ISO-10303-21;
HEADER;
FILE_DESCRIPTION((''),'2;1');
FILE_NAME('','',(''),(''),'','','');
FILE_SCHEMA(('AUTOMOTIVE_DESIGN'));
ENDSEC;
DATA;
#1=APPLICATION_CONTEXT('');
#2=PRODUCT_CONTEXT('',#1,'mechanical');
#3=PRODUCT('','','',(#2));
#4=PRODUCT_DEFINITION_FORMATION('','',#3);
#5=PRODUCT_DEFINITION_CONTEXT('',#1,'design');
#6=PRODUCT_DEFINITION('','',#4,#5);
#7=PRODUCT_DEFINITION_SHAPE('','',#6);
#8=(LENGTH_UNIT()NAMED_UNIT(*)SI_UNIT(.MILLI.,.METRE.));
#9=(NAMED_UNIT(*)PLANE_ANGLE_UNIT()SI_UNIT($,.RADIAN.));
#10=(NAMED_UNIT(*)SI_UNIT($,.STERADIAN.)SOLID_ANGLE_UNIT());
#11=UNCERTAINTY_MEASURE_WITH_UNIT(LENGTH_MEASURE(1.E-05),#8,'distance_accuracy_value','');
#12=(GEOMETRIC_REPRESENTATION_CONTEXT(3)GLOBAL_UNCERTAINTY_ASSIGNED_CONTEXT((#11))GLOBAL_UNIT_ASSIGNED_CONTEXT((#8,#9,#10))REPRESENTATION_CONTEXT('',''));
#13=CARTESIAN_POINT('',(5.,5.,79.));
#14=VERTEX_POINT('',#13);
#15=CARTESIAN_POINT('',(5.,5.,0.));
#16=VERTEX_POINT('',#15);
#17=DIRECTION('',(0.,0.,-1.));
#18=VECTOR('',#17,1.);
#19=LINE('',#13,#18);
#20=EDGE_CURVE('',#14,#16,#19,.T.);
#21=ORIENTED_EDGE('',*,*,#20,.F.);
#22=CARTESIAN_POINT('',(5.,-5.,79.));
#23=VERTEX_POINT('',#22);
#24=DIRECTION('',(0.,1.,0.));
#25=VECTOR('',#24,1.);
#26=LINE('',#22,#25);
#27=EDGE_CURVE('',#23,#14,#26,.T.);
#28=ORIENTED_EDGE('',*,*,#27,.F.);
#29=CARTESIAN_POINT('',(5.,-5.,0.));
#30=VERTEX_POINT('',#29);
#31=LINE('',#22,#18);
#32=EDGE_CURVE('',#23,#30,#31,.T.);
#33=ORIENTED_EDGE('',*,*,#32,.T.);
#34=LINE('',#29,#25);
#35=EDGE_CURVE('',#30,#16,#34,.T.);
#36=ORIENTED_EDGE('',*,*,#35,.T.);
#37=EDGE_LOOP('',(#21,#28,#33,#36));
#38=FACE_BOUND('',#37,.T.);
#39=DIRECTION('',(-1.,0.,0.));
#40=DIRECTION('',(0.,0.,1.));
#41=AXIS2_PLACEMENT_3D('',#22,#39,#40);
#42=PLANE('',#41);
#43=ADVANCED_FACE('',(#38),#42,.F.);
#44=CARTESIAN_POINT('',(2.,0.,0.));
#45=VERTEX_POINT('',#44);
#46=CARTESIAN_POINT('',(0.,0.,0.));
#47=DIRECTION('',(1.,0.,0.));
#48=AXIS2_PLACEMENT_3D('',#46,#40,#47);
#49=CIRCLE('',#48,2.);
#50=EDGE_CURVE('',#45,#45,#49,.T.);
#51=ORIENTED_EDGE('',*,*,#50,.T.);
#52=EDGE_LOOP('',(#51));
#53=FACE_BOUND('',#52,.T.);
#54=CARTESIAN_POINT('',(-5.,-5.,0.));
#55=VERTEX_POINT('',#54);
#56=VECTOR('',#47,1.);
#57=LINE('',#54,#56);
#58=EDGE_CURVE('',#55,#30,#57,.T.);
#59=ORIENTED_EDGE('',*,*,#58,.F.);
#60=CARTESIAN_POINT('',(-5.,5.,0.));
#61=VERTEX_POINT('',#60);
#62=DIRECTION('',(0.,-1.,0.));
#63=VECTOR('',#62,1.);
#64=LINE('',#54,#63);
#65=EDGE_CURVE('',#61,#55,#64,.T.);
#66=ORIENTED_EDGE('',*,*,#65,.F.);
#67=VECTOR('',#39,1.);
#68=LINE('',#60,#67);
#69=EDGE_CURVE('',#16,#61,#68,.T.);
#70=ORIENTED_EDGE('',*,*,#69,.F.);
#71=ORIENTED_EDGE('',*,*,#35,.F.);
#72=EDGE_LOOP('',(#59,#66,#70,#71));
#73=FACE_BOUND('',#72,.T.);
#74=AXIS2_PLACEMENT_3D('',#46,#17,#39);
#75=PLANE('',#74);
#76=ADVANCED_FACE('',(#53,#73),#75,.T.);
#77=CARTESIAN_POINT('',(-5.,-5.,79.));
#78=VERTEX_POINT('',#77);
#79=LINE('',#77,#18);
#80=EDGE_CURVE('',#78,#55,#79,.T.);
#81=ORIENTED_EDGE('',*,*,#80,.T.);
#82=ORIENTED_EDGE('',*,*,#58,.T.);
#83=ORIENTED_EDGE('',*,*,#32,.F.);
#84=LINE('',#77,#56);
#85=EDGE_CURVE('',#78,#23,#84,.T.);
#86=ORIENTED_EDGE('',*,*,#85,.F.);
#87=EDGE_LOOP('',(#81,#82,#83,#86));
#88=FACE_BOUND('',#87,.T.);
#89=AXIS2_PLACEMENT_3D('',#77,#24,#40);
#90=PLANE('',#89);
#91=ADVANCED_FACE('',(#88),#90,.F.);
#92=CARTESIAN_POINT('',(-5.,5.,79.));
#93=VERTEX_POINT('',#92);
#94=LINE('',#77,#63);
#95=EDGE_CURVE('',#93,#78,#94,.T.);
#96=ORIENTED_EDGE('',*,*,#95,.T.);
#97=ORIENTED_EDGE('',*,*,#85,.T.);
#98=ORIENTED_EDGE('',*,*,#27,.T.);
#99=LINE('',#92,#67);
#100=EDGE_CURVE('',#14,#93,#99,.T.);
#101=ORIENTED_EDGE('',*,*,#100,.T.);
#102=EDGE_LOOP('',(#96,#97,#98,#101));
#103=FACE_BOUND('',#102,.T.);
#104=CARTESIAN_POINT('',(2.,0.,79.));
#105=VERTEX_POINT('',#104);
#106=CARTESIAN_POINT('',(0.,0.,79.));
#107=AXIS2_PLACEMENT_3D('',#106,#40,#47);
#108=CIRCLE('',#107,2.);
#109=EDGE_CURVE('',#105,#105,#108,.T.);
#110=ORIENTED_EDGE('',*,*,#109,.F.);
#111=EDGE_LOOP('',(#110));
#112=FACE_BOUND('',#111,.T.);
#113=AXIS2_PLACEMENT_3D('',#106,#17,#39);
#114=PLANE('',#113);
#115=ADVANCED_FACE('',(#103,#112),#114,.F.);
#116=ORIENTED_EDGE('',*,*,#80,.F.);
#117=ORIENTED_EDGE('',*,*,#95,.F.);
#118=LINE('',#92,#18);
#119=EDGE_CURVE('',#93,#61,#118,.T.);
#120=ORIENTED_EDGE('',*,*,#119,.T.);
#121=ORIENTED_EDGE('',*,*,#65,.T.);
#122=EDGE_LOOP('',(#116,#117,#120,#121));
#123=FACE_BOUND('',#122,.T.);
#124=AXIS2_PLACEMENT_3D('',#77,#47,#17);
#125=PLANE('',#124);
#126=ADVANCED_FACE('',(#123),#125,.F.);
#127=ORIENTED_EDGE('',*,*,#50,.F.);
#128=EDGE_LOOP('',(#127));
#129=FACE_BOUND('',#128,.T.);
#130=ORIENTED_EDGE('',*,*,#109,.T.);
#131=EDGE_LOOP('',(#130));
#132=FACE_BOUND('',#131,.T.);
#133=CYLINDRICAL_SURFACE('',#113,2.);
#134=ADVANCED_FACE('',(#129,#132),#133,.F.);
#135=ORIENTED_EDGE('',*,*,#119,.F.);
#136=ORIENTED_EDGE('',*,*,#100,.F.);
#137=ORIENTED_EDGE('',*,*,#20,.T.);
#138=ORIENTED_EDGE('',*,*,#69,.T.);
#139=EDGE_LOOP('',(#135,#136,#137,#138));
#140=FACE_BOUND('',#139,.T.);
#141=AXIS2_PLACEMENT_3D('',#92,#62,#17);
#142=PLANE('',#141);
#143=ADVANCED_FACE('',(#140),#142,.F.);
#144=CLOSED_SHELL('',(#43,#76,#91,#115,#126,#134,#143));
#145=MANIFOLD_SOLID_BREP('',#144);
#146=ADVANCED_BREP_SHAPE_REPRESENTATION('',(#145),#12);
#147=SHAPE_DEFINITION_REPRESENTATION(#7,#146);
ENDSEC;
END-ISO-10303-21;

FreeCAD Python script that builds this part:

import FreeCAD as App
import Part
import Sketcher


def add_polygon(sketch, points):
    """Adds a closed chain of lines whose ends are joined by coincident constraints."""
    first, n = sketch.GeometryCount, len(points)
    for a, b in zip(points, points[1:] + points[:1]):
        sketch.addGeometry(Part.LineSegment(App.Vector(*a, 0), App.Vector(*b, 0)), False)
    for i in range(n):
        sketch.addConstraint(Sketcher.Constraint("Coincident", first + i, 2, first + (i + 1) % n, 1))

doc = App.newDocument("Part")
body = doc.addObject("PartDesign::Body", "Body")

sketch1 = body.newObject("Sketcher::SketchObject", "Sketch")
sketch1.AttachmentSupport = (doc.getObject("XY_Plane"), [""])
sketch1.MapMode = "FlatFace"
add_polygon(sketch1, [(-5, 5), (-5, -5), (5, -5), (5, 5)])
sketch1.addGeometry(Part.Circle(App.Vector(0, 0, 0), App.Vector(0, 0, 1), 2), False)
sketch1.addConstraint([
    Sketcher.Constraint("Vertical", 0),
    Sketcher.Constraint("Horizontal", 1),
    Sketcher.Constraint("Vertical", 2),
    Sketcher.Constraint("Horizontal", 3),
    Sketcher.Constraint("Coincident", 4, 3, -1, 1),
    Sketcher.Constraint("Symmetric", 0, 2, 2, 2, -1, 1),
    Sketcher.Constraint("Equal", 3, 0),
    Sketcher.Constraint("Diameter", 4, 4.0),
    Sketcher.Constraint("DistanceX", 1, 1, 1, 2, 10.0),
])
pad1 = body.newObject("PartDesign::Pad", "Pad")
pad1.Profile = sketch1
pad1.Length = 79

doc.recompute()
